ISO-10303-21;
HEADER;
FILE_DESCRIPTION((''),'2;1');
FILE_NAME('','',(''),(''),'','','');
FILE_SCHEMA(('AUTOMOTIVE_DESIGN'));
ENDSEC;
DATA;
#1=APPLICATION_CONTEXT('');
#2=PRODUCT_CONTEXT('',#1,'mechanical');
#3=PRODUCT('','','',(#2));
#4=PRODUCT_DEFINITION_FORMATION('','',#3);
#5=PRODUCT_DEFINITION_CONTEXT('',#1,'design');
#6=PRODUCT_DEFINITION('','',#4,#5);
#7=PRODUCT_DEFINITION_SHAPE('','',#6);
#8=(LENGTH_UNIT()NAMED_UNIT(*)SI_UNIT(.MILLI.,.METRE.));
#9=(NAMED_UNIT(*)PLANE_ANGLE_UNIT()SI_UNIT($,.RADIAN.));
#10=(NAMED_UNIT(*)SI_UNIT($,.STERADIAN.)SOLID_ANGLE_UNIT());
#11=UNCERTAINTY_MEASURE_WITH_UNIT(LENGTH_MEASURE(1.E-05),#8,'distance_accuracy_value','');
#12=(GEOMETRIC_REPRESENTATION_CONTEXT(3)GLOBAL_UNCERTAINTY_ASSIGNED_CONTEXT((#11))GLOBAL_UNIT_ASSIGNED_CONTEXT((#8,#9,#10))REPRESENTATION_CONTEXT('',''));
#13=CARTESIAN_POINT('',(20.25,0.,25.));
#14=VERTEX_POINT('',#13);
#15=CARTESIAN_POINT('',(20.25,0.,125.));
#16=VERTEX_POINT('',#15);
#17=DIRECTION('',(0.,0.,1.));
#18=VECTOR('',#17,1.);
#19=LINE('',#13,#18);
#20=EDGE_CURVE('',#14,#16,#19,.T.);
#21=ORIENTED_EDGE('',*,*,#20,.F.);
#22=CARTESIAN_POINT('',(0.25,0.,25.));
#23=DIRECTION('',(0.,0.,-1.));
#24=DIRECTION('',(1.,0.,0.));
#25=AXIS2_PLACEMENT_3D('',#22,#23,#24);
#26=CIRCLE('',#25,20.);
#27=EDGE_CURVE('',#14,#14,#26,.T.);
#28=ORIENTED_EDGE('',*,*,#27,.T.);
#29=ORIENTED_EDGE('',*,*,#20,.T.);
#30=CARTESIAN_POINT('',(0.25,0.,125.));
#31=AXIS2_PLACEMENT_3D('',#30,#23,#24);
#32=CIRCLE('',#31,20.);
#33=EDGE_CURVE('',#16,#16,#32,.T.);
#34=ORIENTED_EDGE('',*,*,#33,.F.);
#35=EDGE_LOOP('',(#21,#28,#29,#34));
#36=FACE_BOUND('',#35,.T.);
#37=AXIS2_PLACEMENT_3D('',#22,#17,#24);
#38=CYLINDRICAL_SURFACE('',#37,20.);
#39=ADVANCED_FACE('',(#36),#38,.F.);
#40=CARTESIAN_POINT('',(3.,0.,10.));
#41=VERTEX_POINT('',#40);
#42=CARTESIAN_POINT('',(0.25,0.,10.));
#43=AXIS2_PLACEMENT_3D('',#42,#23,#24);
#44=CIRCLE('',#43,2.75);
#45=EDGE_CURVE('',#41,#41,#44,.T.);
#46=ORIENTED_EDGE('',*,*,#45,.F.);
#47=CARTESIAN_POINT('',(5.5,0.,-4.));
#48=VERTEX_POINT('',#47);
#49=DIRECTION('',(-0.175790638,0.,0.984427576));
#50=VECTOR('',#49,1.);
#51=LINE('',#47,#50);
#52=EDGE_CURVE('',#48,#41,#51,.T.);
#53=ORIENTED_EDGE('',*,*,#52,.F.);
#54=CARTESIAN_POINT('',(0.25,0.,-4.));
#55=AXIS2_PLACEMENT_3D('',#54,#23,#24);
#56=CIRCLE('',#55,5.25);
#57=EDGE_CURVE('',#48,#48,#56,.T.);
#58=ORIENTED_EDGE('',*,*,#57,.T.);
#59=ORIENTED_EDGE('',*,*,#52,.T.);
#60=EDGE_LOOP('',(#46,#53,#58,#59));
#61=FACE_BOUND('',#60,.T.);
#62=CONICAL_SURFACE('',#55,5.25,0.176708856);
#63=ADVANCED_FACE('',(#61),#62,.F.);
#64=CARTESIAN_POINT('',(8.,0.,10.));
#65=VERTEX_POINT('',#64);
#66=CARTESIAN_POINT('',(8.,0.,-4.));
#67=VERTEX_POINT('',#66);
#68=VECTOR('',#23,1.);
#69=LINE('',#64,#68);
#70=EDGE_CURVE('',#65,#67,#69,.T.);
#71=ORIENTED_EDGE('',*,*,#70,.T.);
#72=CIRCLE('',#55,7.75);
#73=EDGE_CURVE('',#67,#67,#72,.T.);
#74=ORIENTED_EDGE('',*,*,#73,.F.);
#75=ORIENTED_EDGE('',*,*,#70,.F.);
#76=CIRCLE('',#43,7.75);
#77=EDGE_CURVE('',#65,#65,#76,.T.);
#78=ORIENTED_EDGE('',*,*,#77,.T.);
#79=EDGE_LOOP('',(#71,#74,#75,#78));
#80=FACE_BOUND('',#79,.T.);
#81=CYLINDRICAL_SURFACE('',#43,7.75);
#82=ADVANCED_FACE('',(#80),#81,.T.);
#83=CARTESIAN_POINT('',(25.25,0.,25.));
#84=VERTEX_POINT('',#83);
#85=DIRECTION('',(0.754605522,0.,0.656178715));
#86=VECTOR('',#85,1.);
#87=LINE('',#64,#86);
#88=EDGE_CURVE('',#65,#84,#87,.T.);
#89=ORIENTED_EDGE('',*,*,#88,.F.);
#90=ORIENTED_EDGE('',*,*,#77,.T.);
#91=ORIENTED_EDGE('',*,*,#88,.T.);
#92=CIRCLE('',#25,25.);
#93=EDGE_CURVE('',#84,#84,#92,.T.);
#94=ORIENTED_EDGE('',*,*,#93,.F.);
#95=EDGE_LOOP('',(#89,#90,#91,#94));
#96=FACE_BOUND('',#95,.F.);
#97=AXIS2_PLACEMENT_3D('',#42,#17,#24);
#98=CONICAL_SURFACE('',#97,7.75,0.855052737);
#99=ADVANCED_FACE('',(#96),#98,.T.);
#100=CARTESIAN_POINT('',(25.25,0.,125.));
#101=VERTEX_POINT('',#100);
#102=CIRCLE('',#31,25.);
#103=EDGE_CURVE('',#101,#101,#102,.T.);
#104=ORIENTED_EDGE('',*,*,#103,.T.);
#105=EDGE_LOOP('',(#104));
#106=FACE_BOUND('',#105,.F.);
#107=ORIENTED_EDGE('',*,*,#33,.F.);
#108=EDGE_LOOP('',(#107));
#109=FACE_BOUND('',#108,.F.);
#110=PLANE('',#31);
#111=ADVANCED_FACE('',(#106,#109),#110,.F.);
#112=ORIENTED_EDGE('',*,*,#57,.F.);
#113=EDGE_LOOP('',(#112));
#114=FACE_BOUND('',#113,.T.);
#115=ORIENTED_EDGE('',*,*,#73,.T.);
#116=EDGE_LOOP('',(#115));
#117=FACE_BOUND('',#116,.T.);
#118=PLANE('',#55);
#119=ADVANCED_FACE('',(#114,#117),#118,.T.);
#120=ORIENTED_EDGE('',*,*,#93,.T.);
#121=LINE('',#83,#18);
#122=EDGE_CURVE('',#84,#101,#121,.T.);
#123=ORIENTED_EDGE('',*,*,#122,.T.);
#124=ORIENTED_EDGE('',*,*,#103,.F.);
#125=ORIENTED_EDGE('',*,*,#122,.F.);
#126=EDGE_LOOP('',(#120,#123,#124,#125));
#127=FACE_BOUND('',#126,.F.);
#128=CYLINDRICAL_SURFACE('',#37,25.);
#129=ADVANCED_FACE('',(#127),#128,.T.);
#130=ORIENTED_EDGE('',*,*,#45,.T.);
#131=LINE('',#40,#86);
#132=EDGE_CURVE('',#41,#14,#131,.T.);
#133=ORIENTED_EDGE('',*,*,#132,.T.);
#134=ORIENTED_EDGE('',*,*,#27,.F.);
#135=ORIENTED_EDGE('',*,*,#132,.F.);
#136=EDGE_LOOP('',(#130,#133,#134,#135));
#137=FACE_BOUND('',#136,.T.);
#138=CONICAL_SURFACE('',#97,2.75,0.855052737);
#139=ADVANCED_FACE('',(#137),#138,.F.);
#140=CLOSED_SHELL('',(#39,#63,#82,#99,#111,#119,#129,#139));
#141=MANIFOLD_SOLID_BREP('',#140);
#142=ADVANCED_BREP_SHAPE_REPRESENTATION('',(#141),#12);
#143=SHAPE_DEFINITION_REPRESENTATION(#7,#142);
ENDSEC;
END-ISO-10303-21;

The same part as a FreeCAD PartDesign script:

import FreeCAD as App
import Part
import Sketcher
Q = App.Units.Quantity

doc = App.newDocument("Part")
params = doc.addObject("Spreadsheet::Sheet", "Params")
for row, (alias, value) in enumerate([
    ("sketch1_width", "5 mm"),
    ("sketch1_height", "100 mm"),
    ("sketch1_height2", "14 mm"),
    ("revolution_angle", "360 deg"),
], start=1):
    params.set(f"A{row}", alias)
    params.set(f"B{row}", "=" + value)
    params.setAlias(f"B{row}", alias)

body = doc.addObject("PartDesign::Body", "Body")

# Sketch on XZ plane
sketch1 = doc.addObject("Sketcher::SketchObject", "Sketch")
body.addObject(sketch1)
sketch1.AttachmentSupport = (doc.XZ_Plane, [""])
sketch1.MapMode = "FlatFace"
sketch1.addGeometry([
    Part.LineSegment(App.Vector(5.5, -4, 0), App.Vector(3, 10, 0)),  # 0
    Part.LineSegment(App.Vector(3, 10, 0), App.Vector(20.2, 25, 0)),  # 1
    Part.LineSegment(App.Vector(20.2, 25, 0), App.Vector(20.2, 125, 0)),  # 2
    Part.LineSegment(App.Vector(20.2, 125, 0), App.Vector(25.2, 125, 0)),  # 3
    Part.LineSegment(App.Vector(25.2, 125, 0), App.Vector(25.2, 25, 0)),  # 4
    Part.LineSegment(App.Vector(25.2, 25, 0), App.Vector(8, 10, 0)),  # 5
    Part.LineSegment(App.Vector(8, 10, 0), App.Vector(8, -4, 0)),  # 6
    Part.LineSegment(App.Vector(8, -4, 0), App.Vector(5.5, -4, 0)),  # 7
], False)
sketch1.addGeometry(Part.LineSegment(App.Vector(0.2, 125, 0), App.Vector(0.2, -4, 0)), True)  # axis
sketch1.addConstraint([
    Sketcher.Constraint("Coincident", 0, 2, 1, 1),
    Sketcher.Constraint("Coincident", 1, 2, 2, 1),
    Sketcher.Constraint("Coincident", 2, 2, 3, 1),
    Sketcher.Constraint("Coincident", 3, 2, 4, 1),
    Sketcher.Constraint("Coincident", 4, 2, 5, 1),
    Sketcher.Constraint("Coincident", 5, 2, 6, 1),
    Sketcher.Constraint("Coincident", 6, 2, 7, 1),
    Sketcher.Constraint("Coincident", 7, 2, 0, 1),
    Sketcher.Constraint("Vertical", 2),
    Sketcher.Constraint("Horizontal", 3),
    Sketcher.Constraint("Vertical", 4),
    Sketcher.Constraint("Vertical", 6),
    Sketcher.Constraint("Horizontal", 7),
    Sketcher.Constraint("Vertical", 8),
    Sketcher.Constraint("Parallel", 1, 5),
    Sketcher.Constraint("Horizontal", 1, 2, 4, 2),
    Sketcher.Constraint("Horizontal", 0, 2, 5, 2),
    Sketcher.Constraint("Horizontal", 3, 2, 8, 1),
    Sketcher.Constraint("Horizontal", 7, 2, 8, 2),
    Sketcher.Constraint("DistanceX", 3, 1, 3, 2, Q("5 mm")),
    Sketcher.Constraint("DistanceY", 2, 1, 2, 2, Q("100 mm")),
    Sketcher.Constraint("DistanceY", 6, 2, 6, 1, Q("14 mm")),
    Sketcher.Constraint("DistanceY", -1, 1, 0, 2, Q("10 mm")),
    Sketcher.Constraint("DistanceY", -1, 1, 2, 2, Q("125 mm")),
    Sketcher.Constraint("DistanceX", -1, 1, 5, 2, Q("8 mm")),
    Sketcher.Constraint("DistanceX", -1, 1, 7, 2, Q("5.5 mm")),
    Sketcher.Constraint("DistanceX", 8, 1, 2, 2, Q("20 mm")),
    Sketcher.Constraint("Angle", 1, Q("41.009 deg")),
])
sketch1.setExpression("Constraints[19]", "Params.sketch1_width")
sketch1.setExpression("Constraints[20]", "Params.sketch1_height")
sketch1.setExpression("Constraints[21]", "Params.sketch1_height2")
revolution = doc.addObject("PartDesign::Revolution", "Revolution")
body.addObject(revolution)
revolution.Profile = sketch1
revolution.ReferenceAxis = (sketch1, ["Axis0"])
revolution.setExpression("Angle", "Params.revolution_angle")

doc.recompute()
